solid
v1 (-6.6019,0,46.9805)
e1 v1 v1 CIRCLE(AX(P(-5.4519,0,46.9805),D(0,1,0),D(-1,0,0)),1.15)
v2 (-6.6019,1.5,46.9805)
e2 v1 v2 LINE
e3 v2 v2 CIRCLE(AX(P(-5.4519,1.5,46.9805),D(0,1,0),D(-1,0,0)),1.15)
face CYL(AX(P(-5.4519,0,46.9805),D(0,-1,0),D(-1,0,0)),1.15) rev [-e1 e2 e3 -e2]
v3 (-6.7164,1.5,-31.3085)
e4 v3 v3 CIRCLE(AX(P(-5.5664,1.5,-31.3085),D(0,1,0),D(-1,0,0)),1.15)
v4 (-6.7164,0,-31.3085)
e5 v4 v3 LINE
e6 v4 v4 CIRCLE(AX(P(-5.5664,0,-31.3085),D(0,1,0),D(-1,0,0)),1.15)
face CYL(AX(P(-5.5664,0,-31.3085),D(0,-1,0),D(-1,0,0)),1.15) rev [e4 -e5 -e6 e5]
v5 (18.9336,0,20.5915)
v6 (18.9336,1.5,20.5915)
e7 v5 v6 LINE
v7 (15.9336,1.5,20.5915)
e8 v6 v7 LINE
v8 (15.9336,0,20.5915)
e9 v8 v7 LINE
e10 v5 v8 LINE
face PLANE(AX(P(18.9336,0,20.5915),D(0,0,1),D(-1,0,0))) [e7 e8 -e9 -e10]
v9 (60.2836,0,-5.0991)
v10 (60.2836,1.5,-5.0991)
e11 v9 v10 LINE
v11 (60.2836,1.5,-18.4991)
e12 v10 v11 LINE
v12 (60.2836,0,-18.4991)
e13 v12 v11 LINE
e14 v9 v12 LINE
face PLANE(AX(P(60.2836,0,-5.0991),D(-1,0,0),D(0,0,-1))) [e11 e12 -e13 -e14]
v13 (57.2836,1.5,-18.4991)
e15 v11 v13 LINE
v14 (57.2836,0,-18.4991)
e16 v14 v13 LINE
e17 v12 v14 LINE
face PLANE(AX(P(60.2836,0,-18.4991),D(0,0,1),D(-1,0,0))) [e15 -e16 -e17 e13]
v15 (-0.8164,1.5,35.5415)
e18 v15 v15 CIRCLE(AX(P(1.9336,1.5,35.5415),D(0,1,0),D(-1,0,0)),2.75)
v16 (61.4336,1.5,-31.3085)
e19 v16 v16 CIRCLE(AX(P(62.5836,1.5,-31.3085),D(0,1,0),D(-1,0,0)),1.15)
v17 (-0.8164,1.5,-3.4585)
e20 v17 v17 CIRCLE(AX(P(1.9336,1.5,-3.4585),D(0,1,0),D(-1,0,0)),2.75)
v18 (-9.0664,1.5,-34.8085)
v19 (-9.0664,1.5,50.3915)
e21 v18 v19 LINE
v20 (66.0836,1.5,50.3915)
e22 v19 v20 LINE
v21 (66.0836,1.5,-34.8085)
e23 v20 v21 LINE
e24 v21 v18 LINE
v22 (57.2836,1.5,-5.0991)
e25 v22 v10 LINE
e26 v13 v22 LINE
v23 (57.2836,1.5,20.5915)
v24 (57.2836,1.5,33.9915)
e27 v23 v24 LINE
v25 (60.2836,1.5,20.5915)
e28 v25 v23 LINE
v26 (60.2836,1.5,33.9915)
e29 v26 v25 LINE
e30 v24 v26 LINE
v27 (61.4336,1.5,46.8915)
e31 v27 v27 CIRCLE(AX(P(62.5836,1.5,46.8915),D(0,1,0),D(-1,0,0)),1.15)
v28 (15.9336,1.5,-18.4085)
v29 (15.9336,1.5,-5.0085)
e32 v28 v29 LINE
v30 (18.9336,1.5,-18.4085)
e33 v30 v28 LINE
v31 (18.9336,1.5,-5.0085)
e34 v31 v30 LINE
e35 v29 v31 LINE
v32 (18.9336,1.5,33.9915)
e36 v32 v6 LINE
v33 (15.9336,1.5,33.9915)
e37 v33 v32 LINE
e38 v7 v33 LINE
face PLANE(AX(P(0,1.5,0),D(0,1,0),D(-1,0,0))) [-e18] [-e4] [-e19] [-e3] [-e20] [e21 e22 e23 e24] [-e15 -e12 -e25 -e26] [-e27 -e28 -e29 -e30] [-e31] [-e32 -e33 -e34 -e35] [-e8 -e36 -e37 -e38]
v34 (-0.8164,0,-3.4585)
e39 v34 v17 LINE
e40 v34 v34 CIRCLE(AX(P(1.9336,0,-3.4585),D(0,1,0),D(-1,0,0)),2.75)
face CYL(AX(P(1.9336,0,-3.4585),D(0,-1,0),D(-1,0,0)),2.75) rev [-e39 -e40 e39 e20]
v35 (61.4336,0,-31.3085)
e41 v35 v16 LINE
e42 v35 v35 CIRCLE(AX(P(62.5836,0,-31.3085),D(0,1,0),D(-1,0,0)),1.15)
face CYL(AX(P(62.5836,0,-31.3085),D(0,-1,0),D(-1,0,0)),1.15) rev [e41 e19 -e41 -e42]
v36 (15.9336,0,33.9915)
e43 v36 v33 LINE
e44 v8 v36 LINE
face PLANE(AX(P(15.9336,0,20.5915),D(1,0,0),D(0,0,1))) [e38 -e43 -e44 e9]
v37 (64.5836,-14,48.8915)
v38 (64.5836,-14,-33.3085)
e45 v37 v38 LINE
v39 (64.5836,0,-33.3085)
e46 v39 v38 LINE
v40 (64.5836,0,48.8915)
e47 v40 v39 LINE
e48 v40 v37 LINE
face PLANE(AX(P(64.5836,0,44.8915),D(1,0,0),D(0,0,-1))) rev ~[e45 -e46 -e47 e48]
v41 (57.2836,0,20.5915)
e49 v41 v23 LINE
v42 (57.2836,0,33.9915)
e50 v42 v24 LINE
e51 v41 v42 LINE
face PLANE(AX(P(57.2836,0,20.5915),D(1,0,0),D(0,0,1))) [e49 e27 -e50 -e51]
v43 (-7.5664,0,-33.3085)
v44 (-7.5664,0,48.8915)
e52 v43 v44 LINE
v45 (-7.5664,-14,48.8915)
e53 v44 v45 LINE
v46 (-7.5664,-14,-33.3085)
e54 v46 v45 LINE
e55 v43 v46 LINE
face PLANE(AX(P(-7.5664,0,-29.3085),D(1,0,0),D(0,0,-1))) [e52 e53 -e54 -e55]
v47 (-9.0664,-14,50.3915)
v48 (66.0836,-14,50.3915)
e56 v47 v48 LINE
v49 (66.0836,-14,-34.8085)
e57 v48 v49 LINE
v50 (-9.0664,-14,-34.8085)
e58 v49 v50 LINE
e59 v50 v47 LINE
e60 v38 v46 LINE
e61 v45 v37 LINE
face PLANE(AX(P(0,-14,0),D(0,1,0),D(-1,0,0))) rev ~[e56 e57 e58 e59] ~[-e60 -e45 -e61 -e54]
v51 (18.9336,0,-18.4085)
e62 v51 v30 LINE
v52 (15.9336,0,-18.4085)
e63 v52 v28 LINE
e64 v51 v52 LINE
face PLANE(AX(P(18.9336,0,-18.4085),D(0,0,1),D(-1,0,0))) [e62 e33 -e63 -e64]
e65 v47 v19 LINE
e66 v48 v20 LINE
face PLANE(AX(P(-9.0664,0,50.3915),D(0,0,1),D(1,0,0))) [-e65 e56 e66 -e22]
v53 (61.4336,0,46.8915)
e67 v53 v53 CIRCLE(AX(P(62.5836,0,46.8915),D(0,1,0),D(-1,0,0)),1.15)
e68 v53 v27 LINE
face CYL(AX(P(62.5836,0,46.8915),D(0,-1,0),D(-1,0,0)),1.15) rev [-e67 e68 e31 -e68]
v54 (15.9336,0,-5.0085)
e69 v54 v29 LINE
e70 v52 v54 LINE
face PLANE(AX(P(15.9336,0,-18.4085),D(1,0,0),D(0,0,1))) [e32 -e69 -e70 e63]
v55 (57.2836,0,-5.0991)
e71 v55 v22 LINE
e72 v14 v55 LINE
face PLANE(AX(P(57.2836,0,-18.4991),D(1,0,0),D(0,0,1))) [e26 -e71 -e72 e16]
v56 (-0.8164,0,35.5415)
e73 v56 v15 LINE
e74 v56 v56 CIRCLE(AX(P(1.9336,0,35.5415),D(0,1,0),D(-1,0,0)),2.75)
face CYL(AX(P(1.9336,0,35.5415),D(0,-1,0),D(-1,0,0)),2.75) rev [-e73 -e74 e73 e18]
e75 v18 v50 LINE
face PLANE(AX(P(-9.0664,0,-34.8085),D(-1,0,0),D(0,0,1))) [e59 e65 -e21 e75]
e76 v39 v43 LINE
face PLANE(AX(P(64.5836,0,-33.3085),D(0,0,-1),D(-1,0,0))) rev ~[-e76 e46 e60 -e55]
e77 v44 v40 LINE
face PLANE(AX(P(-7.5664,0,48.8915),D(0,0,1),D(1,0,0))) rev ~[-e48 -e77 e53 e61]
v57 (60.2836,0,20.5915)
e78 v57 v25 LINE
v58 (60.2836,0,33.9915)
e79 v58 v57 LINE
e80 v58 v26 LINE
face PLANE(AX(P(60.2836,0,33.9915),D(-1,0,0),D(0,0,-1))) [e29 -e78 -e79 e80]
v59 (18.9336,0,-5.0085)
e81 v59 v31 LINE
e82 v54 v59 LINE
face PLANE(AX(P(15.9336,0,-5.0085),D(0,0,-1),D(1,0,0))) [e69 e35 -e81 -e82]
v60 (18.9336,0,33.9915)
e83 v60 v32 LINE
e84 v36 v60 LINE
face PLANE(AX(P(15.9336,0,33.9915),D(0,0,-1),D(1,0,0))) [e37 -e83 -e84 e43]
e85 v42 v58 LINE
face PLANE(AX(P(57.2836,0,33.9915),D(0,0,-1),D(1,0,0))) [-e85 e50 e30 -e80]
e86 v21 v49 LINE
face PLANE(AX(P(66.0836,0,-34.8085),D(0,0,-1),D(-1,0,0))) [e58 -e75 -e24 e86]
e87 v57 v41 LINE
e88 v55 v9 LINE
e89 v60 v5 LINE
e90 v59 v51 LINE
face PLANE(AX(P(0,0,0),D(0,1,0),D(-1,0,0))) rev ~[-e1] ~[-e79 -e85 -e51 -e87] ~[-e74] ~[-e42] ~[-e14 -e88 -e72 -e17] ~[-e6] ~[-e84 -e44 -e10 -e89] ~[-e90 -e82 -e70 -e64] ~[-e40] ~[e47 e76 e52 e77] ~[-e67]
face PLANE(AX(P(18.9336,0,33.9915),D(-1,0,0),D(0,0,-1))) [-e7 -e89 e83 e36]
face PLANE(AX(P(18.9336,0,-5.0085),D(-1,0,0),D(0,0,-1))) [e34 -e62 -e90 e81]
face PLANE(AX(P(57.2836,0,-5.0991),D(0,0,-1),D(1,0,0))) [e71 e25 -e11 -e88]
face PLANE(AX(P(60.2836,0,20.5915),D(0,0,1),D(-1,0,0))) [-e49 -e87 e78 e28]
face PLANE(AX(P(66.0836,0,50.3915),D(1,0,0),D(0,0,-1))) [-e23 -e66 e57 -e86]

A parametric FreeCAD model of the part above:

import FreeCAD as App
import Part
import Sketcher

V = App.Vector

doc = App.newDocument("Part")
body = doc.addObject("PartDesign::Body", "Body")

# Sketch on XZ plane
sketch1 = doc.addObject("Sketcher::SketchObject", "Sketch")
body.addObject(sketch1)
sketch1.AttachmentSupport = (doc.XZ_Plane, [""])
sketch1.MapMode = "FlatFace"
sketch1.addGeometry([
    Part.LineSegment(V(-9, -35, 0), V(-9, 50, 0)),  # 0
    Part.LineSegment(V(-9, 50, 0), V(66, 50, 0)),  # 1
    Part.LineSegment(V(66, 50, 0), V(66, -35, 0)),  # 2
    Part.LineSegment(V(66, -35, 0), V(-9, -35, 0)),  # 3
    Part.LineSegment(V(65, -33, 0), V(65, 49, 0)),  # 4
    Part.LineSegment(V(65, 49, 0), V(-8, 49, 0)),  # 5
    Part.LineSegment(V(-8, 49, 0), V(-8, -33, 0)),  # 6
    Part.LineSegment(V(-8, -33, 0), V(65, -33, 0)),  # 7
], False)
sketch1.addConstraint([
    Sketcher.Constraint("Coincident", 0, 2, 1, 1),
    Sketcher.Constraint("Coincident", 1, 2, 2, 1),
    Sketcher.Constraint("Coincident", 2, 2, 3, 1),
    Sketcher.Constraint("Coincident", 3, 2, 0, 1),
    Sketcher.Constraint("Coincident", 4, 2, 5, 1),
    Sketcher.Constraint("Coincident", 5, 2, 6, 1),
    Sketcher.Constraint("Coincident", 6, 2, 7, 1),
    Sketcher.Constraint("Coincident", 7, 2, 4, 1),
    Sketcher.Constraint("Vertical", 0),
    Sketcher.Constraint("Horizontal", 1),
    Sketcher.Constraint("Vertical", 2),
    Sketcher.Constraint("Horizontal", 3),
    Sketcher.Constraint("Vertical", 4),
    Sketcher.Constraint("Horizontal", 5),
    Sketcher.Constraint("Vertical", 6),
    Sketcher.Constraint("Horizontal", 7),
    Sketcher.Constraint("DistanceY", 4, 1, 4, 2, 82.2),
    Sketcher.Constraint("DistanceX", 5, 2, 5, 1, 72.15),
    Sketcher.Constraint("DistanceX", 4, 2, 1, 2, 1.5),
    Sketcher.Constraint("DistanceY", 4, 2, 1, 2, 1.5),
    Sketcher.Constraint("DistanceX", 0, 2, 5, 2, 1.5),
    Sketcher.Constraint("DistanceY", 3, 2, 6, 2, 1.5),
    Sketcher.Constraint("DistanceX", 0, 2, -1, 1, 9.0664),
    Sketcher.Constraint("DistanceY", -1, 1, 0, 2, 50.3915),
])
pad1 = doc.addObject("PartDesign::Pad", "Pad")
body.addObject(pad1)
pad1.Profile = sketch1
pad1.Length = 14

# Sketch on XZ plane
sketch2 = doc.addObject("Sketcher::SketchObject", "Sketch001")
body.addObject(sketch2)
sketch2.AttachmentSupport = (doc.XZ_Plane, [""])
sketch2.MapMode = "FlatFace"
sketch2.addGeometry([
    Part.LineSegment(V(-9.1, -34.8, 0), V(-9.1, 50.4, 0)),  # 0
    Part.LineSegment(V(-9.1, 50.4, 0), V(66.1, 50.4, 0)),  # 1
    Part.LineSegment(V(66.1, 50.4, 0), V(66.1, -34.8, 0)),  # 2
    Part.LineSegment(V(66.1, -34.8, 0), V(-9.1, -34.8, 0)),  # 3
    Part.Circle(V(62.6, -31.3, 0), V(0, 0, 1), 1.1),  # 4
    Part.LineSegment(V(60.3, -5.1, 0), V(57.3, -5.1, 0)),  # 5
    Part.LineSegment(V(57.3, -5.1, 0), V(57.3, -18.5, 0)),  # 6
    Part.LineSegment(V(57.3, -18.5, 0), V(60.3, -18.5, 0)),  # 7
    Part.LineSegment(V(60.3, -18.5, 0), V(60.3, -5.1, 0)),  # 8
    Part.Circle(V(-5.6, -31.3, 0), V(0, 0, 1), 1.1),  # 9
    Part.LineSegment(V(18.9, -5, 0), V(15.9, -5, 0)),  # 10
    Part.LineSegment(V(15.9, -5, 0), V(15.9, -18.4, 0)),  # 11
    Part.LineSegment(V(15.9, -18.4, 0), V(18.9, -18.4, 0)),  # 12
    Part.LineSegment(V(18.9, -18.4, 0), V(18.9, -5, 0)),  # 13
    Part.Circle(V(1.9, -3.5, 0), V(0, 0, 1), 2.8),  # 14
    Part.LineSegment(V(60.3, 34, 0), V(57.3, 34, 0)),  # 15
    Part.LineSegment(V(57.3, 34, 0), V(57.3, 20.6, 0)),  # 16
    Part.LineSegment(V(57.3, 20.6, 0), V(60.3, 20.6, 0)),  # 17
    Part.LineSegment(V(60.3, 20.6, 0), V(60.3, 34, 0)),  # 18
    Part.Circle(V(62.6, 46.9, 0), V(0, 0, 1), 1.1),  # 19
    Part.LineSegment(V(18.9, 34, 0), V(15.9, 34, 0)),  # 20
    Part.LineSegment(V(15.9, 34, 0), V(15.9, 20.6, 0)),  # 21
    Part.LineSegment(V(15.9, 20.6, 0), V(18.9, 20.6, 0)),  # 22
    Part.LineSegment(V(18.9, 20.6, 0), V(18.9, 34, 0)),  # 23
    Part.Circle(V(1.9, 35.5, 0), V(0, 0, 1), 2.8),  # 24
    Part.Circle(V(-5.5, 47, 0), V(0, 0, 1), 1.1),  # 25
], False)
sketch2.addConstraint([
    Sketcher.Constraint("Coincident", 0, 2, 1, 1),
    Sketcher.Constraint("Coincident", 1, 2, 2, 1),
    Sketcher.Constraint("Coincident", 2, 2, 3, 1),
    Sketcher.Constraint("Coincident", 3, 2, 0, 1),
    Sketcher.Constraint("Coincident", 5, 2, 6, 1),
    Sketcher.Constraint("Coincident", 6, 2, 7, 1),
    Sketcher.Constraint("Coincident", 7, 2, 8, 1),
    Sketcher.Constraint("Coincident", 8, 2, 5, 1),
    Sketcher.Constraint("Coincident", 10, 2, 11, 1),
    Sketcher.Constraint("Coincident", 11, 2, 12, 1),
    Sketcher.Constraint("Coincident", 12, 2, 13, 1),
    Sketcher.Constraint("Coincident", 13, 2, 10, 1),
    Sketcher.Constraint("Coincident", 15, 2, 16, 1),
    Sketcher.Constraint("Coincident", 16, 2, 17, 1),
    Sketcher.Constraint("Coincident", 17, 2, 18, 1),
    Sketcher.Constraint("Coincident", 18, 2, 15, 1),
    Sketcher.Constraint("Coincident", 20, 2, 21, 1),
    Sketcher.Constraint("Coincident", 21, 2, 22, 1),
    Sketcher.Constraint("Coincident", 22, 2, 23, 1),
    Sketcher.Constraint("Coincident", 23, 2, 20, 1),
    Sketcher.Constraint("Vertical", 0),
    Sketcher.Constraint("Horizontal", 1),
    Sketcher.Constraint("Vertical", 2),
    Sketcher.Constraint("Horizontal", 3),
    Sketcher.Constraint("Horizontal", 5),
    Sketcher.Constraint("Vertical", 6),
    Sketcher.Constraint("Horizontal", 7),
    Sketcher.Constraint("Vertical", 8),
    Sketcher.Constraint("Horizontal", 10),
    Sketcher.Constraint("Vertical", 11),
    Sketcher.Constraint("Horizontal", 12),
    Sketcher.Constraint("Vertical", 13),
    Sketcher.Constraint("Horizontal", 15),
    Sketcher.Constraint("Vertical", 16),
    Sketcher.Constraint("Horizontal", 17),
    Sketcher.Constraint("Vertical", 18),
    Sketcher.Constraint("Horizontal", 20),
    Sketcher.Constraint("Vertical", 21),
    Sketcher.Constraint("Horizontal", 22),
    Sketcher.Constraint("Vertical", 23),
    Sketcher.Constraint("Equal", 4, 9),
    Sketcher.Constraint("Equal", 9, 19),
    Sketcher.Constraint("Equal", 14, 24),
    Sketcher.Constraint("Equal", 19, 25),
    Sketcher.Constraint("Horizontal", 4, 3, 9, 3),
    Sketcher.Constraint("Horizontal", 18, 2, 20, 2),
    Sketcher.Constraint("Horizontal", 17, 2, 21, 2),
    Sketcher.Constraint("Vertical", 4, 3, 19, 3),
    Sketcher.Constraint("Vertical", 14, 3, 24, 3),
    Sketcher.Constraint("Vertical", 6, 2, 15, 2),
    Sketcher.Constraint("Vertical", 8, 2, 17, 2),
    Sketcher.Constraint("Vertical", 11, 2, 20, 2),
    Sketcher.Constraint("Vertical", 13, 2, 22, 2),
    Sketcher.Constraint("Equal", 7, 10),
    Sketcher.Constraint("Equal", 8, 11),
    Sketcher.Constraint("Equal", 13, 16),
    Sketcher.Constraint("Diameter", 4, 2.3),
    Sketcher.Constraint("Diameter", 14, 5.5),
    Sketcher.Constraint("DistanceX", 5, 2, 5, 1, 3.0),
    Sketcher.Constraint("DistanceY", 6, 2, 6, 1, 13.4),
    Sketcher.Constraint("DistanceX", 7, 2, 4, 3, 2.3),
    Sketcher.Constraint("DistanceY", 0, 1, 0, 2, 85.2),
    Sketcher.Constraint("DistanceY", 14, 3, 24, 3, 39.0),
    Sketcher.Constraint("DistanceX", 0, 2, 24, 3, 11.0),
    Sketcher.Constraint("DistanceX", 14, 3, 10, 2, 14.0),
    Sketcher.Constraint("DistanceY", 10, 2, 20, 2, 39.0),
    Sketcher.Constraint("DistanceX", 1, 1, 1, 2, 75.15),
    Sketcher.Constraint("DistanceX", 9, 3, 14, 3, 7.5),
    Sketcher.Constraint("DistanceY", 4, 3, 19, 3, 78.2),
    Sketcher.Constraint("DistanceY", 19, 3, 0, 2, 3.5),
    Sketcher.Constraint("DistanceX", 19, 3, 1, 2, 3.5),
    Sketcher.Constraint("DistanceY", 9, 3, 10, 2, 26.3),
    Sketcher.Constraint("DistanceY", 9, 3, 14, 3, 27.85),
    Sketcher.Constraint("DistanceX", 25, 3, -1, 1, 5.452),
    Sketcher.Constraint("DistanceY", 5, 2, -1, 1, 5.099),
    Sketcher.Constraint("DistanceY", 24, 3, 25, 3, 11.439),
    Sketcher.Constraint("DistanceX", -1, 1, 4, 3, 62.5836),
    Sketcher.Constraint("DistanceY", 4, 3, -1, 1, 31.3085),
])
pad2 = doc.addObject("PartDesign::Pad", "Pad001")
body.addObject(pad2)
pad2.Profile = sketch2
pad2.Length = 1.5
pad2.Reversed = True

doc.recompute()
